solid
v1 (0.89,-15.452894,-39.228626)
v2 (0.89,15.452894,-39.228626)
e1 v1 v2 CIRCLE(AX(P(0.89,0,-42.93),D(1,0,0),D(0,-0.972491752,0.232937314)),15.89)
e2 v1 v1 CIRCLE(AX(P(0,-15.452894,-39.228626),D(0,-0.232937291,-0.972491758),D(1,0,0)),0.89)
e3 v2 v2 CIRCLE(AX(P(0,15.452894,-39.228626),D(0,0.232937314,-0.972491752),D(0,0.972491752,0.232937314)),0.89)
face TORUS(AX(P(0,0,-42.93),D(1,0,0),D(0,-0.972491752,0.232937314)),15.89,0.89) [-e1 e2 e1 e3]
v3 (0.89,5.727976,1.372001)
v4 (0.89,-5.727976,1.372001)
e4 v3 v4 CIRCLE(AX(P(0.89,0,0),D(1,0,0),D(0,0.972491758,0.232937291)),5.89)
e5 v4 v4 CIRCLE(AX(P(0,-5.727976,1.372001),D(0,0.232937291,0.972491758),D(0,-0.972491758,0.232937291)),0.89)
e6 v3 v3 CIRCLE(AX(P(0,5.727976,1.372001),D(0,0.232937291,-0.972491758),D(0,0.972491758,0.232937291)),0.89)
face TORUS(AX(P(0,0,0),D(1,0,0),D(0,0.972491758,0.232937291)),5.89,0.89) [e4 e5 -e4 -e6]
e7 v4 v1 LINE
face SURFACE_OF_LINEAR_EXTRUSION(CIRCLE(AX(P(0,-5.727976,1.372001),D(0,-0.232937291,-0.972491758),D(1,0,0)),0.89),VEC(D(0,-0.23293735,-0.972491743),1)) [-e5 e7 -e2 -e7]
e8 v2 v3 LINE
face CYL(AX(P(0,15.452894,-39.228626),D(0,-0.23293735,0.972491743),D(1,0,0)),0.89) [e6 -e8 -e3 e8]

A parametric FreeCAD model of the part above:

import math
import FreeCAD as App
import Part
import Sketcher
Q = App.Units.Quantity

doc = App.newDocument("Part")
body = doc.addObject("PartDesign::Body", "Body")

sketch1 = body.newObject("Sketcher::SketchObject", "Sketch")
sketch1.AttachmentSupport = (doc.getObject("XZ_Plane"), [""])
sketch1.MapMode = "FlatFace"
sketch1.addGeometry(Part.Circle(App.Vector(0, 5.9, 0), App.Vector(0, 0, 1), 0.9), False)
sketch1.addConstraint([
    Sketcher.Constraint("PointOnObject", 0, 3, -2),
    Sketcher.Constraint("Diameter", 0, Q("1.78 mm")),
    Sketcher.Constraint("DistanceY", -1, 1, 0, 3, Q("5.89 mm")),
])

sketch2 = body.newObject("Sketcher::SketchObject", "Sketch001")
sketch2.AttachmentSupport = (doc.getObject("YZ_Plane"), [""])
sketch2.MapMode = "FlatFace"
sketch2.addGeometry([
    Part.ArcOfCircle(Part.Circle(App.Vector(0, 0, 0), App.Vector(0, 0, 1), 6), math.radians(13), math.radians(167)),
    Part.LineSegment(App.Vector(-6, 1, 0), App.Vector(-15, -39, 0)),
    Part.ArcOfCircle(Part.Circle(App.Vector(0, -43, 0), App.Vector(0, 0, 1), 16), math.radians(167), math.radians(373)),
    Part.LineSegment(App.Vector(15, -39, 0), App.Vector(6, 1, 0)),
], False)
sketch2.addConstraint([
    Sketcher.Constraint("Tangent", 0, 2, 1, 1),
    Sketcher.Constraint("Tangent", 1, 2, 2, 1),
    Sketcher.Constraint("Tangent", 2, 2, 3, 1),
    Sketcher.Constraint("Tangent", 3, 2, 0, 1),
    Sketcher.Constraint("Coincident", 0, 3, -1, 1),
    Sketcher.Constraint("PointOnObject", 2, 3, -2),
    Sketcher.Constraint("Radius", 0, Q("5.89 mm")),
    Sketcher.Constraint("Radius", 2, Q("15.89 mm")),
    Sketcher.Constraint("DistanceY", 2, 3, -1, 1, Q("42.93 mm")),
])
doc.recompute()

additivepipe = body.newObject("PartDesign::AdditivePipe", "AdditivePipe")
additivepipe.Profile = sketch1
additivepipe.Spine = (sketch2, ["Edge1", "Edge2", "Edge3", "Edge4"])

doc.recompute()
